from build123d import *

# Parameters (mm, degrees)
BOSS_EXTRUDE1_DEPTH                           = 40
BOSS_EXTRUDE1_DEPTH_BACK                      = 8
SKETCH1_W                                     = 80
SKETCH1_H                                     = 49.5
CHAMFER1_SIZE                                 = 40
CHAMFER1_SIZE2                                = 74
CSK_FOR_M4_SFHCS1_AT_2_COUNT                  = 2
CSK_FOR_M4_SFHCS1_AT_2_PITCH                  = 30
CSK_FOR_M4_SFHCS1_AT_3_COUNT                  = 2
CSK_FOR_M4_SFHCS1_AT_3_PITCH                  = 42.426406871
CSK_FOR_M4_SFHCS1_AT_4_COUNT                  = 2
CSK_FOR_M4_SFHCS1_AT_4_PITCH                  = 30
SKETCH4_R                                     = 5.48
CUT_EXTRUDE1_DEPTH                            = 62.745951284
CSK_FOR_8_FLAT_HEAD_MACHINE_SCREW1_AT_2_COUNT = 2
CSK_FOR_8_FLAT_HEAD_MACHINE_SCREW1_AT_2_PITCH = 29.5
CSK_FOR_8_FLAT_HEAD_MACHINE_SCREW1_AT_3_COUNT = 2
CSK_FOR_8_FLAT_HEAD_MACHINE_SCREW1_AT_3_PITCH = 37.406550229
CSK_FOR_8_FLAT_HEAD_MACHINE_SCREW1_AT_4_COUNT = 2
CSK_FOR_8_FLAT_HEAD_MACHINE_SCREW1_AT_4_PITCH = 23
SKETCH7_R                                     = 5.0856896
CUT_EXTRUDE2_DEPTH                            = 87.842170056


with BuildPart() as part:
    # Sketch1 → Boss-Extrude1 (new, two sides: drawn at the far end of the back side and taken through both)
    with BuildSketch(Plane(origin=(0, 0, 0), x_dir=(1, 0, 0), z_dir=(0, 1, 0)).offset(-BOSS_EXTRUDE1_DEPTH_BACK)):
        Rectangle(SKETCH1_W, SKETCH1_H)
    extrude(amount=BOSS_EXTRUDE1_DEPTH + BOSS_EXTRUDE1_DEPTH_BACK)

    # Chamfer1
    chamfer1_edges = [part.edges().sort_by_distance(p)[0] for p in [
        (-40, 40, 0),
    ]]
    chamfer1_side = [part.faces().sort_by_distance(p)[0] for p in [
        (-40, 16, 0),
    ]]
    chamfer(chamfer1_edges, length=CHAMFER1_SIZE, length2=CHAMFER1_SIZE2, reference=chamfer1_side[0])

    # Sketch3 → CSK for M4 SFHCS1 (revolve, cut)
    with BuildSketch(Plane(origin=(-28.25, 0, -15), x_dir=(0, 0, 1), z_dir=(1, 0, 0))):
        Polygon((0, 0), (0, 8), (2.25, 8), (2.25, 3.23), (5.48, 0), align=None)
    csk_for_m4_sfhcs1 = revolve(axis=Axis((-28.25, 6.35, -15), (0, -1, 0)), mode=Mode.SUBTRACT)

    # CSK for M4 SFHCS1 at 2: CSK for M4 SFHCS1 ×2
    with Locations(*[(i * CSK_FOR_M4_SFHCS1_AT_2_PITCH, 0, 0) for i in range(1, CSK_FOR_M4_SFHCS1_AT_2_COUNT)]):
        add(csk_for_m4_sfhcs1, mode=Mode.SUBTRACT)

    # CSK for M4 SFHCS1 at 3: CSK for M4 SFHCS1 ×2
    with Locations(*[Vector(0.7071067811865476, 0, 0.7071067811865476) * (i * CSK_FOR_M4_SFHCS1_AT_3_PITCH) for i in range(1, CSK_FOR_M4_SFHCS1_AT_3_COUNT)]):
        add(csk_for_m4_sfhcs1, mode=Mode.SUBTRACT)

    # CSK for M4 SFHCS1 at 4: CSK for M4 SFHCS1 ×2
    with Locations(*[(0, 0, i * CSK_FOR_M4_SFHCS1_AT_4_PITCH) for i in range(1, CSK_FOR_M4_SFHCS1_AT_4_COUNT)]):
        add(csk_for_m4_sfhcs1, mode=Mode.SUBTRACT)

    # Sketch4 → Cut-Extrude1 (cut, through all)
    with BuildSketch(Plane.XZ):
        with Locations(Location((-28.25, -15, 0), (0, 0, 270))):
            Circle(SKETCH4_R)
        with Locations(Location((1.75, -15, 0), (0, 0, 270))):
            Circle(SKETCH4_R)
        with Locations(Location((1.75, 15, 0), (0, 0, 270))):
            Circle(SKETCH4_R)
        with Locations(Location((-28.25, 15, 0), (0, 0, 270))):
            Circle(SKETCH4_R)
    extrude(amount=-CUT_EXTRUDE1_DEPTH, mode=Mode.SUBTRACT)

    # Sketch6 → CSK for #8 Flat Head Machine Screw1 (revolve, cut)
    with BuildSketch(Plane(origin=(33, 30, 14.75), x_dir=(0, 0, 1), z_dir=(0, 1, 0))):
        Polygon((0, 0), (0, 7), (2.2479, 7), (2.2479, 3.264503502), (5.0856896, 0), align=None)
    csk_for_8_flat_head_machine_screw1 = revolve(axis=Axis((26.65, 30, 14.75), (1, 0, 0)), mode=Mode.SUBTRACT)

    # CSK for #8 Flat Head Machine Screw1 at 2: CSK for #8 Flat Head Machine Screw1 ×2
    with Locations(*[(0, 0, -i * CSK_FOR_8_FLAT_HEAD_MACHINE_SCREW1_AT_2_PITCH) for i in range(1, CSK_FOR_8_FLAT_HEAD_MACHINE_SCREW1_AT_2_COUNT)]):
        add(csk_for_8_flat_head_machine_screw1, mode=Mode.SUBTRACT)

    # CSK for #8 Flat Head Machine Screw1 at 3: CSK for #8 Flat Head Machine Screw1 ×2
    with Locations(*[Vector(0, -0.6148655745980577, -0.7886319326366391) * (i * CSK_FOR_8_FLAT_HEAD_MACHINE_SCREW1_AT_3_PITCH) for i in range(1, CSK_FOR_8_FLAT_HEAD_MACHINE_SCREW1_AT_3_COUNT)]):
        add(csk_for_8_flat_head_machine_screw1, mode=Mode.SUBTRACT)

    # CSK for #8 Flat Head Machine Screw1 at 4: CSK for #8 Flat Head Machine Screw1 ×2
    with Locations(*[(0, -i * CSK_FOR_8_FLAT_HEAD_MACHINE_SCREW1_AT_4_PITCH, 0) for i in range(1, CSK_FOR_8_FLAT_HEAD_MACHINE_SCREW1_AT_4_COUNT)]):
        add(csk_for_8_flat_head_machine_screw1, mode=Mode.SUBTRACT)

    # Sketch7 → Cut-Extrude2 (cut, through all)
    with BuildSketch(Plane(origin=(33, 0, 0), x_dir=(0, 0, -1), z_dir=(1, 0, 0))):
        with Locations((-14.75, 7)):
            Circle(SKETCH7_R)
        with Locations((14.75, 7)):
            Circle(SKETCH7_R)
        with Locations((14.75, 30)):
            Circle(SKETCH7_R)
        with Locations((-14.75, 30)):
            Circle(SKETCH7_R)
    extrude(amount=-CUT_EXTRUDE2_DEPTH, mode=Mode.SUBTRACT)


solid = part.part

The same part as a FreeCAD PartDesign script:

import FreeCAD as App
import Part
import Sketcher

V = App.Vector
Q = App.Units.Quantity


def edges_at(feature, points):
    """Names of the edges that pass closest to the given points."""
    edges = feature.Shape.Edges
    near = lambda p: min(range(len(edges)), key=lambda i: edges[i].distToShape(Part.Vertex(*p))[0])
    return sorted({f"Edge{near(p) + 1}" for p in points})

doc = App.newDocument("Part")
body = doc.addObject("PartDesign::Body", "Body")

sketch1 = body.newObject("Sketcher::SketchObject", "Sketch")
sketch1.AttachmentSupport = (doc.getObject("XZ_Plane"), [""])
sketch1.MapMode = "FlatFace"
sketch1.addGeometry(Part.LineSegment(V(-40, -25, 0), V(-40, 25, 0)), False)
sketch1.addGeometry(Part.LineSegment(V(-40, 25, 0), V(40, 25, 0)), False)
sketch1.addGeometry(Part.LineSegment(V(40, 25, 0), V(40, -25, 0)), False)
sketch1.addGeometry(Part.LineSegment(V(40, -25, 0), V(-40, -25, 0)), False)
sketch1.addConstraint(Sketcher.Constraint("Coincident", 0, 2, 1, 1))
sketch1.addConstraint(Sketcher.Constraint("Coincident", 1, 2, 2, 1))
sketch1.addConstraint(Sketcher.Constraint("Coincident", 2, 2, 3, 1))
sketch1.addConstraint(Sketcher.Constraint("Coincident", 3, 2, 0, 1))
sketch1.addConstraint(Sketcher.Constraint("Vertical", 0))
sketch1.addConstraint(Sketcher.Constraint("Horizontal", 1))
sketch1.addConstraint(Sketcher.Constraint("Vertical", 2))
sketch1.addConstraint(Sketcher.Constraint("Horizontal", 3))
sketch1.addConstraint(Sketcher.Constraint("Symmetric", 0, 2, 2, 2, -1, 1))
sketch1.addConstraint(Sketcher.Constraint("DistanceX", 1, 1, 1, 2, Q("80 mm")))
sketch1.addConstraint(Sketcher.Constraint("DistanceY", 0, 1, 0, 2, Q("49.5 mm")))
pad1 = body.newObject("PartDesign::Pad", "Pad")
pad1.Profile = sketch1
pad1.Type = "TwoLengths"
pad1.Length = 40
pad1.Length2 = 8
pad1.Reversed = True
doc.recompute()

chamfer = body.newObject("PartDesign::Chamfer", "Chamfer")
chamfer.Base = (pad1, edges_at(pad1, [(-40, 40, 0)]))
chamfer.ChamferType = "Two distances"
chamfer.Size = 40
chamfer.Size2 = 74

sketch2 = body.newObject("Sketcher::SketchObject", "Sketch001")
sketch2.AttachmentSupport = (doc.getObject("YZ_Plane"), [""])
sketch2.MapMode = "FlatFace"
sketch2.AttachmentOffset = App.Placement(V(0, 0, -28.25), App.Rotation())
sketch2.addGeometry(Part.LineSegment(V(-8, -15, 0), V(0, -15, 0)), False)
sketch2.addGeometry(Part.LineSegment(V(0, -15, 0), V(0, -9.5, 0)), False)
sketch2.addGeometry(Part.LineSegment(V(0, -9.5, 0), V(-3.2, -12.8, 0)), False)
sketch2.addGeometry(Part.LineSegment(V(-3.2, -12.8, 0), V(-8, -12.8, 0)), False)
sketch2.addGeometry(Part.LineSegment(V(-8, -12.8, 0), V(-8, -15, 0)), False)
sketch2.addGeometry(Part.LineSegment(V(0, -15, 0), V(-8, -15, 0)), True)
sketch2.addConstraint(Sketcher.Constraint("Coincident", 0, 2, 1, 1))
sketch2.addConstraint(Sketcher.Constraint("Coincident", 1, 2, 2, 1))
sketch2.addConstraint(Sketcher.Constraint("Coincident", 2, 2, 3, 1))
sketch2.addConstraint(Sketcher.Constraint("Coincident", 3, 2, 4, 1))
sketch2.addConstraint(Sketcher.Constraint("Coincident", 4, 2, 0, 1))
sketch2.addConstraint(Sketcher.Constraint("Horizontal", 0))
sketch2.addConstraint(Sketcher.Constraint("Vertical", 1))
sketch2.addConstraint(Sketcher.Constraint("Horizontal", 3))
sketch2.addConstraint(Sketcher.Constraint("Vertical", 4))
sketch2.addConstraint(Sketcher.Constraint("Horizontal", 5))
sketch2.addConstraint(Sketcher.Constraint("Coincident", 5, 1, 0, 2))
sketch2.addConstraint(Sketcher.Constraint("PointOnObject", 0, 2, -2))
sketch2.addConstraint(Sketcher.Constraint("Vertical", 3, 2, 5, 2))
sketch2.addConstraint(Sketcher.Constraint("DistanceX", 0, 1, 0, 2, Q("8 mm")))
sketch2.addConstraint(Sketcher.Constraint("Angle", 2, Q("-135 deg")))
sketch2.addConstraint(Sketcher.Constraint("DistanceY", 0, 2, -1, 1, Q("15 mm")))
sketch2.addConstraint(Sketcher.Constraint("DistanceX", 3, 2, 3, 1, Q("4.77 mm")))
sketch2.addConstraint(Sketcher.Constraint("DistanceY", 1, 1, 1, 2, Q("5.48 mm")))
groove = body.newObject("PartDesign::Groove", "Groove")
groove.Profile = sketch2
groove.ReferenceAxis = (sketch2, ["Axis0"])
groove.Angle = 360
doc.recompute()

linearpattern = body.newObject("PartDesign::LinearPattern", "LinearPattern")
linearpattern.Originals = [groove]
linearpattern.Direction = (doc.getObject("X_Axis"), [""])
linearpattern.Mode = "offset"
linearpattern.Offset = 30
linearpattern.Occurrences = 2
body.Tip = linearpattern
doc.recompute()

datumline = body.newObject("PartDesign::Line", "DatumLine")
datumline.Placement = App.Placement(V(0, 0, 0), App.Rotation(V(0, 0, 1), V(0.707106781, 0, 0.707106781)))
linearpattern2 = body.newObject("PartDesign::LinearPattern", "LinearPattern001")
linearpattern2.Originals = [groove]
linearpattern2.Direction = (datumline, [""])
linearpattern2.Mode = "offset"
linearpattern2.Offset = 42.426407
linearpattern2.Occurrences = 2
body.Tip = linearpattern2
doc.recompute()

linearpattern3 = body.newObject("PartDesign::LinearPattern", "LinearPattern002")
linearpattern3.Originals = [groove]
linearpattern3.Direction = (doc.getObject("Z_Axis"), [""])
linearpattern3.Mode = "offset"
linearpattern3.Offset = 30
linearpattern3.Occurrences = 2
body.Tip = linearpattern3

sketch3 = body.newObject("Sketcher::SketchObject", "Sketch002")
sketch3.AttachmentSupport = (doc.getObject("XZ_Plane"), [""])
sketch3.MapMode = "FlatFace"
sketch3.addGeometry(Part.Circle(V(-28, -15, 0), V(0, 0, 1), 5), False)
sketch3.addGeometry(Part.Circle(V(2, -15, 0), V(0, 0, 1), 5), False)
sketch3.addGeometry(Part.Circle(V(2, 15, 0), V(0, 0, 1), 5), False)
sketch3.addGeometry(Part.Circle(V(-28, 15, 0), V(0, 0, 1), 5), False)
sketch3.addConstraint(Sketcher.Constraint("Equal", 0, 1))
sketch3.addConstraint(Sketcher.Constraint("Equal", 1, 2))
sketch3.addConstraint(Sketcher.Constraint("Equal", 2, 3))
sketch3.addConstraint(Sketcher.Constraint("Symmetric", 1, 3, 2, 3, -1))
sketch3.addConstraint(Sketcher.Constraint("Symmetric", 0, 3, 3, 3, -1))
sketch3.addConstraint(Sketcher.Constraint("Horizontal", 0, 3, 1, 3))
sketch3.addConstraint(Sketcher.Constraint("Diameter", 0, Q("10.96 mm")))
sketch3.addConstraint(Sketcher.Constraint("DistanceY", 0, 3, -1, 1, Q("15 mm")))
sketch3.addConstraint(Sketcher.Constraint("DistanceX", 0, 3, 1, 3, Q("30 mm")))
sketch3.addConstraint(Sketcher.Constraint("DistanceX", 0, 3, -1, 1, Q("28.25 mm")))
pocket1 = body.newObject("PartDesign::Pocket", "Pocket")
pocket1.Profile = sketch3
pocket1.Type = "ThroughAll"

sketch4 = body.newObject("Sketcher::SketchObject", "Sketch003")
sketch4.AttachmentSupport = (doc.getObject("XZ_Plane"), [""])
sketch4.MapMode = "FlatFace"
sketch4.AttachmentOffset = App.Placement(V(0, 0, -30), App.Rotation())
sketch4.addGeometry(Part.LineSegment(V(40, 14.8, 0), V(33, 14.8, 0)), False)
sketch4.addGeometry(Part.LineSegment(V(33, 14.8, 0), V(33, 19.8, 0)), False)
sketch4.addGeometry(Part.LineSegment(V(33, 19.8, 0), V(36.3, 17, 0)), False)
sketch4.addGeometry(Part.LineSegment(V(36.3, 17, 0), V(40, 17, 0)), False)
sketch4.addGeometry(Part.LineSegment(V(40, 17, 0), V(40, 14.8, 0)), False)
sketch4.addGeometry(Part.LineSegment(V(33, 14.8, 0), V(40, 14.8, 0)), True)
sketch4.addConstraint(Sketcher.Constraint("Coincident", 0, 2, 1, 1))
sketch4.addConstraint(Sketcher.Constraint("Coincident", 1, 2, 2, 1))
sketch4.addConstraint(Sketcher.Constraint("Coincident", 2, 2, 3, 1))
sketch4.addConstraint(Sketcher.Constraint("Coincident", 3, 2, 4, 1))
sketch4.addConstraint(Sketcher.Constraint("Coincident", 4, 2, 0, 1))
sketch4.addConstraint(Sketcher.Constraint("Horizontal", 0))
sketch4.addConstraint(Sketcher.Constraint("Vertical", 1))
sketch4.addConstraint(Sketcher.Constraint("Horizontal", 3))
sketch4.addConstraint(Sketcher.Constraint("Vertical", 4))
sketch4.addConstraint(Sketcher.Constraint("Horizontal", 5))
sketch4.addConstraint(Sketcher.Constraint("Coincident", 5, 1, 0, 2))
sketch4.addConstraint(Sketcher.Constraint("Vertical", 3, 2, 5, 2))
sketch4.addConstraint(Sketcher.Constraint("DistanceX", 0, 2, 0, 1, Q("7 mm")))
sketch4.addConstraint(Sketcher.Constraint("Angle", 2, Q("-41 deg")))
sketch4.addConstraint(Sketcher.Constraint("DistanceX", -1, 1, 0, 2, Q("33 mm")))
sketch4.addConstraint(Sketcher.Constraint("DistanceY", -1, 1, 0, 2, Q("14.75 mm")))
sketch4.addConstraint(Sketcher.Constraint("DistanceY", 4, 2, 4, 1, Q("2.2479 mm")))
sketch4.addConstraint(Sketcher.Constraint("DistanceY", 1, 1, 1, 2, Q("5.08569 mm")))
groove2 = body.newObject("PartDesign::Groove", "Groove001")
groove2.Profile = sketch4
groove2.ReferenceAxis = (sketch4, ["Axis0"])
groove2.Angle = 360
doc.recompute()

linearpattern4 = body.newObject("PartDesign::LinearPattern", "LinearPattern003")
linearpattern4.Originals = [groove2]
linearpattern4.Direction = (doc.getObject("Z_Axis"), [""])
linearpattern4.Mode = "offset"
linearpattern4.Offset = 29.5
linearpattern4.Occurrences = 2
linearpattern4.Reversed = True
body.Tip = linearpattern4
doc.recompute()

datumline2 = body.newObject("PartDesign::Line", "DatumLine001")
datumline2.Placement = App.Placement(V(0, 0, 0), App.Rotation(V(0, 0, 1), V(0, -0.614865575, -0.788631933)))
linearpattern5 = body.newObject("PartDesign::LinearPattern", "LinearPattern004")
linearpattern5.Originals = [groove2]
linearpattern5.Direction = (datumline2, [""])
linearpattern5.Mode = "offset"
linearpattern5.Offset = 37.40655
linearpattern5.Occurrences = 2
body.Tip = linearpattern5
doc.recompute()

linearpattern6 = body.newObject("PartDesign::LinearPattern", "LinearPattern005")
linearpattern6.Originals = [groove2]
linearpattern6.Direction = (doc.getObject("Y_Axis"), [""])
linearpattern6.Mode = "offset"
linearpattern6.Offset = 23
linearpattern6.Occurrences = 2
linearpattern6.Reversed = True
body.Tip = linearpattern6

sketch5 = body.newObject("Sketcher::SketchObject", "Sketch004")
sketch5.AttachmentSupport = (doc.getObject("YZ_Plane"), [""])
sketch5.MapMode = "FlatFace"
sketch5.AttachmentOffset = App.Placement(V(0, 0, 33), App.Rotation())
sketch5.addGeometry(Part.Circle(V(7, 15, 0), V(0, 0, 1), 5), False)
sketch5.addGeometry(Part.Circle(V(7, -15, 0), V(0, 0, 1), 5), False)
sketch5.addGeometry(Part.Circle(V(30, -15, 0), V(0, 0, 1), 5), False)
sketch5.addGeometry(Part.Circle(V(30, 15, 0), V(0, 0, 1), 5), False)
sketch5.addConstraint(Sketcher.Constraint("Equal", 0, 1))
sketch5.addConstraint(Sketcher.Constraint("Equal", 1, 2))
sketch5.addConstraint(Sketcher.Constraint("Equal", 2, 3))
sketch5.addConstraint(Sketcher.Constraint("Symmetric", 0, 3, 1, 3, -1))
sketch5.addConstraint(Sketcher.Constraint("Symmetric", 2, 3, 3, 3, -1))
sketch5.addConstraint(Sketcher.Constraint("Horizontal", 1, 3, 2, 3))
sketch5.addConstraint(Sketcher.Constraint("DistanceX", -1, 1, 0, 3, Q("7 mm")))
sketch5.addConstraint(Sketcher.Constraint("DistanceX", -1, 1, 2, 3, Q("30 mm")))
sketch5.addConstraint(Sketcher.Constraint("DistanceY", 1, 3, 0, 3, Q("29.5 mm")))
sketch5.addConstraint(Sketcher.Constraint("Diameter", 0, Q("10.171379 mm")))
pocket2 = body.newObject("PartDesign::Pocket", "Pocket001")
pocket2.Profile = sketch5
pocket2.Type = "ThroughAll"

doc.recompute()
